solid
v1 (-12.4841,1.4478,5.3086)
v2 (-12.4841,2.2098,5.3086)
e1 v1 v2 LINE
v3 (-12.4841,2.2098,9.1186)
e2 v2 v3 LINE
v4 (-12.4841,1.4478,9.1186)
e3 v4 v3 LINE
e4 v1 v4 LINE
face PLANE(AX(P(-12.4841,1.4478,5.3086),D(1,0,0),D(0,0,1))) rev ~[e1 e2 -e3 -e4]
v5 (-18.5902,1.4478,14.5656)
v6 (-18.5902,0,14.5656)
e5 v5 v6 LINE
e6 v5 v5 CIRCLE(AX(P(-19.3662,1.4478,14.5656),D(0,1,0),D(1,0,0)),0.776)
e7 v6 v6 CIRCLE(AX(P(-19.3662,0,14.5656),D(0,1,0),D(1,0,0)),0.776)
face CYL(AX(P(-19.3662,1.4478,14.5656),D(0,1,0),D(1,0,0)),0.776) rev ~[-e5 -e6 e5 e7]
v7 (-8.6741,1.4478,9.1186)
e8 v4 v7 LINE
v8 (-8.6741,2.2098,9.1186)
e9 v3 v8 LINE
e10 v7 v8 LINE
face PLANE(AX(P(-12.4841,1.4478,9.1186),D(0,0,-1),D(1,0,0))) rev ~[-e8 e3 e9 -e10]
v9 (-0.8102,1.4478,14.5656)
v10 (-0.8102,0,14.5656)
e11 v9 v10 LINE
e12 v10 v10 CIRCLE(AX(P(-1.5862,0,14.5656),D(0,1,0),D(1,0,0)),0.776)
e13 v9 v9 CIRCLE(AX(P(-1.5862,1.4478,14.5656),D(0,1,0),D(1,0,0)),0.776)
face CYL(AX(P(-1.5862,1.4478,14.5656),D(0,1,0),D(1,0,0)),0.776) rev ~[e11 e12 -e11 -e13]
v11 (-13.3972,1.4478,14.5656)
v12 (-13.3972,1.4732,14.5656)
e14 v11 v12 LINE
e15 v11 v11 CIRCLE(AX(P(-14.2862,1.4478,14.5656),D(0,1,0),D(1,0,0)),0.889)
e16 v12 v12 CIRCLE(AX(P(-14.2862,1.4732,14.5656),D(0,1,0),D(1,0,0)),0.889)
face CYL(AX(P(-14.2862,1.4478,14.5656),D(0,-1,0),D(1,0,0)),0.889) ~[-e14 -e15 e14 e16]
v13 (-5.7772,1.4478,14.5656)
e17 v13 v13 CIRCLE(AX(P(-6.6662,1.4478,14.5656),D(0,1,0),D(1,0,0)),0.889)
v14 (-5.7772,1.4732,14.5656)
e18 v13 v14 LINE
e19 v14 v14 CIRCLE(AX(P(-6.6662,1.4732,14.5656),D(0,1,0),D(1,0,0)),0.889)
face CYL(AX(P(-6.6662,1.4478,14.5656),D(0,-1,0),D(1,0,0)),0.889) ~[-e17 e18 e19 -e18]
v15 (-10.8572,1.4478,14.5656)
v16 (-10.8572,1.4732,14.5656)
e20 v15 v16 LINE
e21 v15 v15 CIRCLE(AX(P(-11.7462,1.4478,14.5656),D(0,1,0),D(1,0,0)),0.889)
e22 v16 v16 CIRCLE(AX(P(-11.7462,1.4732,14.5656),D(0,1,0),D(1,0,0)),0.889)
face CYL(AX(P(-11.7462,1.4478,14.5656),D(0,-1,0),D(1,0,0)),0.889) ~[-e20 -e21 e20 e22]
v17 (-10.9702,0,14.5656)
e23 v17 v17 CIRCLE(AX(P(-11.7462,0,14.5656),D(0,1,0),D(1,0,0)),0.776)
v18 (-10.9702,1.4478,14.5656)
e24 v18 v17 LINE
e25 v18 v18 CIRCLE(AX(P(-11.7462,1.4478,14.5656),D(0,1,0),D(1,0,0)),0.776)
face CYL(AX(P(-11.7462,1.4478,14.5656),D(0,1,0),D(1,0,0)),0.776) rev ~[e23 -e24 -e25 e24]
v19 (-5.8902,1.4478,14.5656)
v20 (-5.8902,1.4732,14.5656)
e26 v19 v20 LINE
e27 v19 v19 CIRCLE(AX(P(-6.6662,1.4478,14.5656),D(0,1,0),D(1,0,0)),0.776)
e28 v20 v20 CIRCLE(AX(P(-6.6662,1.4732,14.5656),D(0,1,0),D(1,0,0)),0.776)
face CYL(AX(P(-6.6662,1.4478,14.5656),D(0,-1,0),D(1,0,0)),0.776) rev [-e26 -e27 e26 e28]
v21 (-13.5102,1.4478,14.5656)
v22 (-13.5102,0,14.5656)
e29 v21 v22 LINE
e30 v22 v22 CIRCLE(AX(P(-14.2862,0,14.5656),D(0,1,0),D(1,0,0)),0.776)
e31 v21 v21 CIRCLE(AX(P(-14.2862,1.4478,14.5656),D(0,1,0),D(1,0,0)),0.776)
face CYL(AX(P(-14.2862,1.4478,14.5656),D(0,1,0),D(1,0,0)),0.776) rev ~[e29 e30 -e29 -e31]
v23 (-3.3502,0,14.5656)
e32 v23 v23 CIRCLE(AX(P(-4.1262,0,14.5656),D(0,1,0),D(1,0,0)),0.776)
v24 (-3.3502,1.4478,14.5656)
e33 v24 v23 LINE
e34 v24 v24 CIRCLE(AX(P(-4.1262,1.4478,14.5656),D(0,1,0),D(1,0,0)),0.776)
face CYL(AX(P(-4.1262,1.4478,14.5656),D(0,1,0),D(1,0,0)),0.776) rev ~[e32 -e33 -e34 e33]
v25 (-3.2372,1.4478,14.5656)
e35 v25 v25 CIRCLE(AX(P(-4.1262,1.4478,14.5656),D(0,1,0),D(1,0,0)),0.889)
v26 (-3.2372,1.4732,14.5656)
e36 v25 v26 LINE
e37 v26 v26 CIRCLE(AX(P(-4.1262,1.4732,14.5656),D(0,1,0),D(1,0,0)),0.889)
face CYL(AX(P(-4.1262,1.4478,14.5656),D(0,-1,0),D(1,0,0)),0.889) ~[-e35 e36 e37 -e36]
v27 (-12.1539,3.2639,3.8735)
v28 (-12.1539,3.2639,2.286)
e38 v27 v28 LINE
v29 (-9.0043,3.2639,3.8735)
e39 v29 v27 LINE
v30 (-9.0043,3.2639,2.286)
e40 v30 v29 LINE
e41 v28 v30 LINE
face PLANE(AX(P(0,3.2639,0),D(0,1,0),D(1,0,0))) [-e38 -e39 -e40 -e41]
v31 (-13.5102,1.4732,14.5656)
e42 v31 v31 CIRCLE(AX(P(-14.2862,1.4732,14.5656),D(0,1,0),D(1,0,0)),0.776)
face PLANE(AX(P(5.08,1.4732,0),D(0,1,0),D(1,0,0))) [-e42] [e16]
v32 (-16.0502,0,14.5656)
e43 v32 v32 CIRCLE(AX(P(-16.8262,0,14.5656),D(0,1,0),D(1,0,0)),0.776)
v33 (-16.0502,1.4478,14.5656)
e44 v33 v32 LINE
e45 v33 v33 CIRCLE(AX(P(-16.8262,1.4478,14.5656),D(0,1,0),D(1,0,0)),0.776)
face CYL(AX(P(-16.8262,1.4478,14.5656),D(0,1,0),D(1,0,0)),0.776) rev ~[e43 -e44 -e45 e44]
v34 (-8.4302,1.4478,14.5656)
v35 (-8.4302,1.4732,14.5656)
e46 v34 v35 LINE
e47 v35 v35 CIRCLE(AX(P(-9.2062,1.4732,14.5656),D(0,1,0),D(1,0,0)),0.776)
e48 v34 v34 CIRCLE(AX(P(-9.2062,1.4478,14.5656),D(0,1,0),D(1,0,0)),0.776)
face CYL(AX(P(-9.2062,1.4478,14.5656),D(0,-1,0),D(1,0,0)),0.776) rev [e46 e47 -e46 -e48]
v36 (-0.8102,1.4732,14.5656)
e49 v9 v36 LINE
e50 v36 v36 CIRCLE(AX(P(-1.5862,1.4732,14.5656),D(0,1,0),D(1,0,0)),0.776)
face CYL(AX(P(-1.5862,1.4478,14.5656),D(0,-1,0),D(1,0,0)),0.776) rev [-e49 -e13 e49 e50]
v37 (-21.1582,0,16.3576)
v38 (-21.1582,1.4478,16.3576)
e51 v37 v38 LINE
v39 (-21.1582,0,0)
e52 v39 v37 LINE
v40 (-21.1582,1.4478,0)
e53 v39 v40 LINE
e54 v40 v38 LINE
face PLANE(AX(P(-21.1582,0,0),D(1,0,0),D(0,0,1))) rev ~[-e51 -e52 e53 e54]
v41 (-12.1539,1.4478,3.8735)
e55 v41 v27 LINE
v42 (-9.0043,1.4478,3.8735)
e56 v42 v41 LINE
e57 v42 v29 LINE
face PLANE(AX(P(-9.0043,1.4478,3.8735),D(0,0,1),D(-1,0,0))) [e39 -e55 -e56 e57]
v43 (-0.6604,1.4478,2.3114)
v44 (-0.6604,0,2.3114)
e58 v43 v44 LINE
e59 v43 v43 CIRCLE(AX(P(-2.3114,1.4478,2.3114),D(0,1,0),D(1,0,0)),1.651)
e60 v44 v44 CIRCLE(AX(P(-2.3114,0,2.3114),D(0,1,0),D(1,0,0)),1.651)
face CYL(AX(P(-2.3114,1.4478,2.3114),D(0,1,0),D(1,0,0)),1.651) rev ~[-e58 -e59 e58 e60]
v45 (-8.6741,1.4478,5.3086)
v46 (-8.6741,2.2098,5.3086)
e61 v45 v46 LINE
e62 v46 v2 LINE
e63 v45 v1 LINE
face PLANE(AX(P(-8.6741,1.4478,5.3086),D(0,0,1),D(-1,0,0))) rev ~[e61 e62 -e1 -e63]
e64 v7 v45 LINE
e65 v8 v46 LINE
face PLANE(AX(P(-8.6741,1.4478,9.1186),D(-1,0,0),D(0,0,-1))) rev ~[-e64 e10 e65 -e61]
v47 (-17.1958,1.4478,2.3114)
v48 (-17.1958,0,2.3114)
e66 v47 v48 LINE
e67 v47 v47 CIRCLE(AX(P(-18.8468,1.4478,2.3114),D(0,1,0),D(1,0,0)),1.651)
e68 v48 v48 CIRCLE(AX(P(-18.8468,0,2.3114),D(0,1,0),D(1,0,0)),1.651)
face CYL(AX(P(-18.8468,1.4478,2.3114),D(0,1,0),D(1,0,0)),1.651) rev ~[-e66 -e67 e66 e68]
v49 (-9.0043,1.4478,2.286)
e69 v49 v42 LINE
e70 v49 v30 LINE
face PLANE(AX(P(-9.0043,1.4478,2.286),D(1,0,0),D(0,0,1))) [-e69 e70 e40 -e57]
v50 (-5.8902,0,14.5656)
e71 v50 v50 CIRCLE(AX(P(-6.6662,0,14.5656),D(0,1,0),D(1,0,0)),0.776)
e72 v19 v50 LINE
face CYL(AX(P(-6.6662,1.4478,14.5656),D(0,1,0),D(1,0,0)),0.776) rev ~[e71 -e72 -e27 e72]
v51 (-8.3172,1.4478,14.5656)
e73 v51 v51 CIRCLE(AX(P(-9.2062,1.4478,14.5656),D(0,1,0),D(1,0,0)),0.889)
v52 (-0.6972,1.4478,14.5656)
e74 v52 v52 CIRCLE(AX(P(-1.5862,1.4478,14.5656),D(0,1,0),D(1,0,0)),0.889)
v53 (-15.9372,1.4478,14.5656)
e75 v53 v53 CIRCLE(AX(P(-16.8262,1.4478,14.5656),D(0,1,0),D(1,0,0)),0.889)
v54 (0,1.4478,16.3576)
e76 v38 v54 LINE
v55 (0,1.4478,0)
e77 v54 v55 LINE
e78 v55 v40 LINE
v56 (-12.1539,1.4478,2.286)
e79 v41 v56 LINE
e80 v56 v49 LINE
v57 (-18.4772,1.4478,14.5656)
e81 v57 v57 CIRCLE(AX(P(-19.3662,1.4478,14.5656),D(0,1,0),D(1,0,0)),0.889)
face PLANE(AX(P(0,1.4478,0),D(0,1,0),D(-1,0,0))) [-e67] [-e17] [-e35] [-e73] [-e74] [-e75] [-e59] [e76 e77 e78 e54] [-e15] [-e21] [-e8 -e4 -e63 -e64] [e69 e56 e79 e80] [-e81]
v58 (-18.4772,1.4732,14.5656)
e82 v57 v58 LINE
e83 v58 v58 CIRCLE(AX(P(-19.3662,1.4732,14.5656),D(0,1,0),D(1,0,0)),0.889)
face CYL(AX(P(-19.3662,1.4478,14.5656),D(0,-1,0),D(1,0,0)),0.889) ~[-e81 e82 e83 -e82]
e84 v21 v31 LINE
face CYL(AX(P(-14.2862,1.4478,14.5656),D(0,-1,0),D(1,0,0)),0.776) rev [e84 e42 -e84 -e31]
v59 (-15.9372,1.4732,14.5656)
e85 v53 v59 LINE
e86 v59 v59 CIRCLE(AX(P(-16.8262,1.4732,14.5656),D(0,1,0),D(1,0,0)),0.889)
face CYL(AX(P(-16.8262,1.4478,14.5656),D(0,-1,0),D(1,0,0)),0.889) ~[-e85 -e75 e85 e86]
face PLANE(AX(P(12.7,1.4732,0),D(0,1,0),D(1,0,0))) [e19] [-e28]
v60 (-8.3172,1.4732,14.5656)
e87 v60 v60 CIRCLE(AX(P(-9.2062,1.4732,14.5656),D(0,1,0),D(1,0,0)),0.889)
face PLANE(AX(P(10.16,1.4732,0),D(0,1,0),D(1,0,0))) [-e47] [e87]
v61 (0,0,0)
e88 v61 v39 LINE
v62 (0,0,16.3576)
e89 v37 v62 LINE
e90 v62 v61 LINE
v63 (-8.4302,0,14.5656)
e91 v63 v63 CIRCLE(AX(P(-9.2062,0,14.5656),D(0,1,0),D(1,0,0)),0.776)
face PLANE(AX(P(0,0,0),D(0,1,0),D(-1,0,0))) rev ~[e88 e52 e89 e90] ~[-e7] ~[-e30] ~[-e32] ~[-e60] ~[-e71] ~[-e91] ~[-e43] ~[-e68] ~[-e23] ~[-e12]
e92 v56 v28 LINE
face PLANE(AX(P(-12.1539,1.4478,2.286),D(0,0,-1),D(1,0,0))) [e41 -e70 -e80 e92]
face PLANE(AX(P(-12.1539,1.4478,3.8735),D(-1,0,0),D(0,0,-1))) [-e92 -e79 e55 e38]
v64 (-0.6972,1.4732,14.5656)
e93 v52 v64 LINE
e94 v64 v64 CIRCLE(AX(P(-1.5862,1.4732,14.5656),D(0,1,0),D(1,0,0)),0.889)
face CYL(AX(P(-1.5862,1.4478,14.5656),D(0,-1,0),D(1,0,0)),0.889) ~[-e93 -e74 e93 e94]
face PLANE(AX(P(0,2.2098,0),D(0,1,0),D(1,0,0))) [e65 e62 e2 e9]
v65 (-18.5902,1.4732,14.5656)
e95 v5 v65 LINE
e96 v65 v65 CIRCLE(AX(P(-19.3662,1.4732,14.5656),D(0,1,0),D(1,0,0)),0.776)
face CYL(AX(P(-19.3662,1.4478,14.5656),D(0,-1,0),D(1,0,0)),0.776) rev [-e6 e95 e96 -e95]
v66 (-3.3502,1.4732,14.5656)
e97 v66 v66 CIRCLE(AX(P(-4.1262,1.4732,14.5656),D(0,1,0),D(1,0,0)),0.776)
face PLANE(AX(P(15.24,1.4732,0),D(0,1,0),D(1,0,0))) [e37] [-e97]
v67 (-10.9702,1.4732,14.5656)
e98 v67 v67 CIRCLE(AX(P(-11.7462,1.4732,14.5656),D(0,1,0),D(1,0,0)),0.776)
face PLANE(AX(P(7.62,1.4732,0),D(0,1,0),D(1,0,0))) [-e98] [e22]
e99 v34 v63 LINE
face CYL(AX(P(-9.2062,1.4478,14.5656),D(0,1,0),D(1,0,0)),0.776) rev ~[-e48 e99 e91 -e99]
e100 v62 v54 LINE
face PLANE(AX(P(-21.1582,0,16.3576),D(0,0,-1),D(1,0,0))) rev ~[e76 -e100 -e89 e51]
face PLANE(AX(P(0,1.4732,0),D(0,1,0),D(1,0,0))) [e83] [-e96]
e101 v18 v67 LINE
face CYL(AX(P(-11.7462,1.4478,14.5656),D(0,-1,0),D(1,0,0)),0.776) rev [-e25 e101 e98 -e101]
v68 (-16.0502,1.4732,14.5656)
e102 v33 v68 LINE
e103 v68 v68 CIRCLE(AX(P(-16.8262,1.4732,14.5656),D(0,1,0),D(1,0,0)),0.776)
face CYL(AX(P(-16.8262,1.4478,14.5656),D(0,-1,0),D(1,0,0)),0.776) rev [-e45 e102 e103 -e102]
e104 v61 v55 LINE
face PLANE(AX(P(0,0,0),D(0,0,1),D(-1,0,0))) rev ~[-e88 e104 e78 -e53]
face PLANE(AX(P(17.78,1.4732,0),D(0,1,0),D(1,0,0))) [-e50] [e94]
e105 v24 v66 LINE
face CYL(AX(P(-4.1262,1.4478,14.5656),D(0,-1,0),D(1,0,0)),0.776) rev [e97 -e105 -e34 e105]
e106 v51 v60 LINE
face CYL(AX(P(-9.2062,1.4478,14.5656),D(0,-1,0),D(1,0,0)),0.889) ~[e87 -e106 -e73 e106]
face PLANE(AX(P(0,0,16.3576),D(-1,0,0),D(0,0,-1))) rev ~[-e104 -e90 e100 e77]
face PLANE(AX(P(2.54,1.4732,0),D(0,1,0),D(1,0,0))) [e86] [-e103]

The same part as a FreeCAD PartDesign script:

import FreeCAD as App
import Part
import Sketcher
Q = App.Units.Quantity


def add_polygon(sketch, points):
    """Adds a closed chain of lines whose ends are joined by coincident constraints."""
    first, n = sketch.GeometryCount, len(points)
    for a, b in zip(points, points[1:] + points[:1]):
        sketch.addGeometry(Part.LineSegment(App.Vector(*a, 0), App.Vector(*b, 0)), False)
    for i in range(n):
        sketch.addConstraint(Sketcher.Constraint("Coincident", first + i, 2, first + (i + 1) % n, 1))

doc = App.newDocument("Part")
body = doc.addObject("PartDesign::Body", "Body")

sketch1 = body.newObject("Sketcher::SketchObject", "Sketch")
sketch1.AttachmentSupport = (doc.getObject("XZ_Plane"), [""])
sketch1.MapMode = "FlatFace"
add_polygon(sketch1, [(0, 16), (0, 0), (-21, 0), (-21, 16)])
sketch1.addConstraint([
    Sketcher.Constraint("Vertical", 0),
    Sketcher.Constraint("Horizontal", 1),
    Sketcher.Constraint("Vertical", 2),
    Sketcher.Constraint("Horizontal", 3),
    Sketcher.Constraint("Coincident", 0, 2, -1, 1),
    Sketcher.Constraint("DistanceX", 1, 2, 1, 1, Q("0.833 in")),
    Sketcher.Constraint("DistanceY", 0, 2, 0, 1, Q("0.644 in")),
])
pad1 = body.newObject("PartDesign::Pad", "Pad")
pad1.Profile = sketch1
pad1.Length = Q("0.057 in")
pad1.Reversed = True

sketch2 = body.newObject("Sketcher::SketchObject", "Sketch001")
sketch2.AttachmentSupport = (doc.getObject("XZ_Plane"), [""])
sketch2.MapMode = "FlatFace"
sketch2.AttachmentOffset = App.Placement(App.Vector(0, 0, -0.057 * 25.4), App.Rotation())
sketch2.addGeometry([
    Part.Circle(App.Vector(-18.8, 2.3, 0), App.Vector(0, 0, 1), 1.7),
    Part.Circle(App.Vector(-2.3, 2.3, 0), App.Vector(0, 0, 1), 1.7),
], False)
sketch2.addConstraint([
    Sketcher.Constraint("Equal", 0, 1),
    Sketcher.Constraint("Horizontal", 0, 3, 1, 3),
    Sketcher.Constraint("Diameter", 0, Q("0.13 in")),
    Sketcher.Constraint("DistanceX", 0, 3, -1, 1, Q("0.742 in")),
    Sketcher.Constraint("DistanceY", -1, 1, 0, 3, Q("0.091 in")),
    Sketcher.Constraint("DistanceX", 1, 3, -1, 1, Q("0.091 in")),
])
pocket1 = body.newObject("PartDesign::Pocket", "Pocket")
pocket1.Profile = sketch2
pocket1.Type = "ThroughAll"
pocket1.Reversed = True

sketch3 = body.newObject("Sketcher::SketchObject", "Sketch002")
sketch3.AttachmentSupport = (doc.getObject("XZ_Plane"), [""])
sketch3.MapMode = "FlatFace"
sketch3.AttachmentOffset = App.Placement(App.Vector(0, 0, -0.057 * 25.4), App.Rotation())
add_polygon(sketch3, [(-9, 2.3), (-12.2, 2.3), (-12.2, 3.9), (-9, 3.9)])
sketch3.addConstraint([
    Sketcher.Constraint("Horizontal", 0),
    Sketcher.Constraint("Vertical", 1),
    Sketcher.Constraint("Horizontal", 2),
    Sketcher.Constraint("Vertical", 3),
    Sketcher.Constraint("DistanceX", 0, 2, 0, 1, Q("0.124 in")),
    Sketcher.Constraint("DistanceY", 1, 1, 1, 2, Q("0.0625 in")),
    Sketcher.Constraint("DistanceY", -1, 1, 0, 2, Q("0.09 in")),
    Sketcher.Constraint("DistanceX", 0, 2, -1, 1, Q("0.4785 in")),
])
pad2 = body.newObject("PartDesign::Pad", "Pad001")
pad2.Profile = sketch3
pad2.Length = Q("0.0715 in")
pad2.Reversed = True

sketch4 = body.newObject("Sketcher::SketchObject", "Sketch003")
sketch4.AttachmentSupport = (doc.getObject("XZ_Plane"), [""])
sketch4.MapMode = "FlatFace"
sketch4.AttachmentOffset = App.Placement(App.Vector(0, 0, -0.057 * 25.4), App.Rotation())
add_polygon(sketch4, [(-8.7, 9.1), (-8.7, 5.3), (-12.5, 5.3), (-12.5, 9.1)])
sketch4.addConstraint([
    Sketcher.Constraint("Vertical", 0),
    Sketcher.Constraint("Horizontal", 1),
    Sketcher.Constraint("Vertical", 2),
    Sketcher.Constraint("Horizontal", 3),
    Sketcher.Constraint("Equal", 3, 0),
    Sketcher.Constraint("DistanceX", 1, 2, 1, 1, Q("0.15 in")),
    Sketcher.Constraint("DistanceY", -1, 1, 0, 2, Q("0.209 in")),
    Sketcher.Constraint("DistanceX", 0, 2, -1, 1, Q("0.3415 in")),
])
pad3 = body.newObject("PartDesign::Pad", "Pad002")
pad3.Profile = sketch4
pad3.Length = Q("0.03 in")
pad3.Reversed = True

sketch5 = body.newObject("Sketcher::SketchObject", "Sketch004")
sketch5.AttachmentSupport = (doc.getObject("XZ_Plane"), [""])
sketch5.MapMode = "FlatFace"
sketch5.AttachmentOffset = App.Placement(App.Vector(0, 0, -0.057 * 25.4), App.Rotation())
sketch5.addGeometry(Part.Circle(App.Vector(-19.4, 14.6, 0), App.Vector(0, 0, 1), 0.8), False)
sketch5.addConstraint([
    Sketcher.Constraint("Diameter", 0, Q("0.0611 in")),
    Sketcher.Constraint("DistanceX", 0, 3, -1, 1, Q("19.3662 mm")),
    Sketcher.Constraint("DistanceY", -1, 1, 0, 3, Q("14.5656 mm")),
])
pocket2 = body.newObject("PartDesign::Pocket", "Pocket001")
pocket2.Profile = sketch5
pocket2.Type = "ThroughAll"
pocket2.Reversed = True

sketch6 = body.newObject("Sketcher::SketchObject", "Sketch005")
sketch6.AttachmentSupport = (doc.getObject("XZ_Plane"), [""])
sketch6.MapMode = "FlatFace"
sketch6.AttachmentOffset = App.Placement(App.Vector(0, 0, -0.057 * 25.4), App.Rotation())
sketch6.addGeometry([
    Part.Circle(App.Vector(-19.4, 14.6, 0), App.Vector(0, 0, 1), 0.9),
    Part.Circle(App.Vector(-19.4, 14.6, 0), App.Vector(0, 0, 1), 0.8),
], False)
sketch6.addConstraint([
    Sketcher.Constraint("Coincident", 1, 3, 0, 3),
    Sketcher.Constraint("Diameter", 0, Q("0.07 in")),
    Sketcher.Constraint("Diameter", 1, Q("0.0611 in")),
    Sketcher.Constraint("DistanceX", 0, 3, -1, 1, Q("19.3662 mm")),
    Sketcher.Constraint("DistanceY", -1, 1, 0, 3, Q("14.5656 mm")),
])
pad4 = body.newObject("PartDesign::Pad", "Pad003")
pad4.Profile = sketch6
pad4.Length = Q("0.001 in")
pad4.Reversed = True
doc.recompute()

linearpattern = body.newObject("PartDesign::LinearPattern", "LinearPattern")
linearpattern.Originals = [pocket2, pad4]
linearpattern.Direction = (doc.getObject("X_Axis"), [""])
linearpattern.Mode = "offset"
linearpattern.Offset = Q("0.1 in")
linearpattern.Occurrences = 8
body.Tip = linearpattern

doc.recompute()
